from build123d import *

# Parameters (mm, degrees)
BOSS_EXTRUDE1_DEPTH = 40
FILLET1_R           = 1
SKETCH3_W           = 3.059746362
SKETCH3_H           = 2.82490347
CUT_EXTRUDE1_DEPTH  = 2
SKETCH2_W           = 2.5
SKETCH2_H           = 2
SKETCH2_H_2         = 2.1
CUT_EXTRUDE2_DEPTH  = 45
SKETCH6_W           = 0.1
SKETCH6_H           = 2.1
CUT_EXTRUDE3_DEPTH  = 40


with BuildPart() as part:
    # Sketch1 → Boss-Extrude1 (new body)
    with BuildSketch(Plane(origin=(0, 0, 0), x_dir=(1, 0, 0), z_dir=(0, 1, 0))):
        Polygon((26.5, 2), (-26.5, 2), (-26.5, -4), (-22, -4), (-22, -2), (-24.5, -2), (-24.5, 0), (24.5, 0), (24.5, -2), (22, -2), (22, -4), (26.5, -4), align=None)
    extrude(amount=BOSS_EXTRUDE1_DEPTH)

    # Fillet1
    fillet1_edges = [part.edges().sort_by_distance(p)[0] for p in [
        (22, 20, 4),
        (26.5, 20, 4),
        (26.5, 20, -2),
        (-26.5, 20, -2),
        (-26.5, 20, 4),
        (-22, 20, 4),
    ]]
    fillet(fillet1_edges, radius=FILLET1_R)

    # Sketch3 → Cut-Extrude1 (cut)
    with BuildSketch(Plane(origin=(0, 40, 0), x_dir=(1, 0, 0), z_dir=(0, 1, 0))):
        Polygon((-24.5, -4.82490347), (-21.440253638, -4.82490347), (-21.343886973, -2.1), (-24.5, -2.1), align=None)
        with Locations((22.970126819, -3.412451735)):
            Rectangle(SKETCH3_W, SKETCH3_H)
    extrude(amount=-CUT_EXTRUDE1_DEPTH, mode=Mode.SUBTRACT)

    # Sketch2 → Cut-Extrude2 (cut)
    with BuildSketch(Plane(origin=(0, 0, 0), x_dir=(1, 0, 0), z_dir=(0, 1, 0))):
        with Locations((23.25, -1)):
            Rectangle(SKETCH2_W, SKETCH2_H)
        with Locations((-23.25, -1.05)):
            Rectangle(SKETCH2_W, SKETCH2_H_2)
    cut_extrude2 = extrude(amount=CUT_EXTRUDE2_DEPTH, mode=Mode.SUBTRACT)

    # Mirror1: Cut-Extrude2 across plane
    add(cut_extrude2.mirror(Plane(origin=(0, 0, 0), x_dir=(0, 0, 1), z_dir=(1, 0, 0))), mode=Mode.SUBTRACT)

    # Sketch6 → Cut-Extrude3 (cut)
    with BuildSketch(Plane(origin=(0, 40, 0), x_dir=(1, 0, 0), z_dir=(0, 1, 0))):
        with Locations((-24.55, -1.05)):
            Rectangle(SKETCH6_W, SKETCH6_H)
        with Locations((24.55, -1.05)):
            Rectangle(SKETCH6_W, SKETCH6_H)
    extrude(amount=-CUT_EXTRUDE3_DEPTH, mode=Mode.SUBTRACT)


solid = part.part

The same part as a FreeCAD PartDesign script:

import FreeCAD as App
import Part
import Sketcher


def edges_at(feature, points):
    """Names of the edges that pass closest to the given points."""
    edges = feature.Shape.Edges
    near = lambda p: min(range(len(edges)), key=lambda i: edges[i].distToShape(Part.Vertex(*p))[0])
    return sorted({f"Edge{near(p) + 1}" for p in points})

doc = App.newDocument("Part")
body = doc.addObject("PartDesign::Body", "Body")

# Sketch on XZ plane
sketch1 = body.newObject("Sketcher::SketchObject", "Sketch")
sketch1.AttachmentSupport = (doc.getObject("XZ_Plane"), [""])
sketch1.MapMode = "FlatFace"
sketch1.addGeometry(Part.LineSegment(App.Vector(26.5, -2, 0), App.Vector(-26.5, -2, 0)), False)
sketch1.addGeometry(Part.LineSegment(App.Vector(-26.5, -2, 0), App.Vector(-26.5, 4, 0)), False)
sketch1.addGeometry(Part.LineSegment(App.Vector(-26.5, 4, 0), App.Vector(-22, 4, 0)), False)
sketch1.addGeometry(Part.LineSegment(App.Vector(-22, 4, 0), App.Vector(-22, 2, 0)), False)
sketch1.addGeometry(Part.LineSegment(App.Vector(-22, 2, 0), App.Vector(-24.5, 2, 0)), False)
sketch1.addGeometry(Part.LineSegment(App.Vector(-24.5, 2, 0), App.Vector(-24.5, 0, 0)), False)
sketch1.addGeometry(Part.LineSegment(App.Vector(-24.5, 0, 0), App.Vector(24.5, 0, 0)), False)
sketch1.addGeometry(Part.LineSegment(App.Vector(24.5, 0, 0), App.Vector(24.5, 2, 0)), False)
sketch1.addGeometry(Part.LineSegment(App.Vector(24.5, 2, 0), App.Vector(22, 2, 0)), False)
sketch1.addGeometry(Part.LineSegment(App.Vector(22, 2, 0), App.Vector(22, 4, 0)), False)
sketch1.addGeometry(Part.LineSegment(App.Vector(22, 4, 0), App.Vector(26.5, 4, 0)), False)
sketch1.addGeometry(Part.LineSegment(App.Vector(26.5, 4, 0), App.Vector(26.5, -2, 0)), False)
sketch1.addConstraint(Sketcher.Constraint("Coincident", 0, 2, 1, 1))
sketch1.addConstraint(Sketcher.Constraint("Coincident", 1, 2, 2, 1))
sketch1.addConstraint(Sketcher.Constraint("Coincident", 2, 2, 3, 1))
sketch1.addConstraint(Sketcher.Constraint("Coincident", 3, 2, 4, 1))
sketch1.addConstraint(Sketcher.Constraint("Coincident", 4, 2, 5, 1))
sketch1.addConstraint(Sketcher.Constraint("Coincident", 5, 2, 6, 1))
sketch1.addConstraint(Sketcher.Constraint("Coincident", 6, 2, 7, 1))
sketch1.addConstraint(Sketcher.Constraint("Coincident", 7, 2, 8, 1))
sketch1.addConstraint(Sketcher.Constraint("Coincident", 8, 2, 9, 1))
sketch1.addConstraint(Sketcher.Constraint("Coincident", 9, 2, 10, 1))
sketch1.addConstraint(Sketcher.Constraint("Coincident", 10, 2, 11, 1))
sketch1.addConstraint(Sketcher.Constraint("Coincident", 11, 2, 0, 1))
sketch1.addConstraint(Sketcher.Constraint("Horizontal", 0))
sketch1.addConstraint(Sketcher.Constraint("Vertical", 1))
sketch1.addConstraint(Sketcher.Constraint("Horizontal", 2))
sketch1.addConstraint(Sketcher.Constraint("Vertical", 3))
sketch1.addConstraint(Sketcher.Constraint("Horizontal", 4))
sketch1.addConstraint(Sketcher.Constraint("Vertical", 5))
sketch1.addConstraint(Sketcher.Constraint("Horizontal", 6))
sketch1.addConstraint(Sketcher.Constraint("Vertical", 7))
sketch1.addConstraint(Sketcher.Constraint("Horizontal", 8))
sketch1.addConstraint(Sketcher.Constraint("Vertical", 9))
sketch1.addConstraint(Sketcher.Constraint("Horizontal", 10))
sketch1.addConstraint(Sketcher.Constraint("Vertical", 11))
sketch1.addConstraint(Sketcher.Constraint("Symmetric", 5, 2, 6, 2, -1, 1))
sketch1.addConstraint(Sketcher.Constraint("Symmetric", 3, 2, 8, 2, -2))
sketch1.addConstraint(Sketcher.Constraint("Symmetric", 1, 2, 10, 2, -2))
sketch1.addConstraint(Sketcher.Constraint("Equal", 3, 5))
sketch1.addConstraint(Sketcher.Constraint("DistanceX", 0, 2, 0, 1, 53.0))
sketch1.addConstraint(Sketcher.Constraint("DistanceX", 6, 1, 6, 2, 49.0))
sketch1.addConstraint(Sketcher.Constraint("DistanceY", 1, 1, 1, 2, 6.0))
sketch1.addConstraint(Sketcher.Constraint("DistanceY", 3, 2, 3, 1, 2.0))
sketch1.addConstraint(Sketcher.Constraint("DistanceX", 2, 1, 2, 2, 4.5))
pad1 = body.newObject("PartDesign::Pad", "Pad")
pad1.Profile = sketch1
pad1.Length = 40
pad1.Reversed = True
doc.recompute()

fillet = body.newObject("PartDesign::Fillet", "Fillet")
fillet.Base = (pad1, edges_at(pad1, [
    (22, 20, 4),
    (26.5, 20, 4),
    (26.5, 20, -2),
    (-26.5, 20, -2),
    (-26.5, 20, 4),
    (-22, 20, 4),
]))
fillet.Radius = 1

# Sketch on XZ plane
sketch2 = body.newObject("Sketcher::SketchObject", "Sketch001")
sketch2.AttachmentSupport = (doc.getObject("XZ_Plane"), [""])
sketch2.MapMode = "FlatFace"
sketch2.AttachmentOffset = App.Placement(App.Vector(0, 0, -40), App.Rotation())
sketch2.addGeometry(Part.LineSegment(App.Vector(-24.5, 4.8, 0), App.Vector(-21.4, 4.8, 0)), False)
sketch2.addGeometry(Part.LineSegment(App.Vector(-21.4, 4.8, 0), App.Vector(-21.3, 2.1, 0)), False)
sketch2.addGeometry(Part.LineSegment(App.Vector(-21.3, 2.1, 0), App.Vector(-24.5, 2.1, 0)), False)
sketch2.addGeometry(Part.LineSegment(App.Vector(-24.5, 2.1, 0), App.Vector(-24.5, 4.8, 0)), False)
sketch2.addGeometry(Part.LineSegment(App.Vector(21.4, 2, 0), App.Vector(21.4, 4.8, 0)), False)
sketch2.addGeometry(Part.LineSegment(App.Vector(21.4, 4.8, 0), App.Vector(24.5, 4.8, 0)), False)
sketch2.addGeometry(Part.LineSegment(App.Vector(24.5, 4.8, 0), App.Vector(24.5, 2, 0)), False)
sketch2.addGeometry(Part.LineSegment(App.Vector(24.5, 2, 0), App.Vector(21.4, 2, 0)), False)
sketch2.addConstraint(Sketcher.Constraint("Coincident", 0, 2, 1, 1))
sketch2.addConstraint(Sketcher.Constraint("Coincident", 1, 2, 2, 1))
sketch2.addConstraint(Sketcher.Constraint("Coincident", 2, 2, 3, 1))
sketch2.addConstraint(Sketcher.Constraint("Coincident", 3, 2, 0, 1))
sketch2.addConstraint(Sketcher.Constraint("Coincident", 4, 2, 5, 1))
sketch2.addConstraint(Sketcher.Constraint("Coincident", 5, 2, 6, 1))
sketch2.addConstraint(Sketcher.Constraint("Coincident", 6, 2, 7, 1))
sketch2.addConstraint(Sketcher.Constraint("Coincident", 7, 2, 4, 1))
sketch2.addConstraint(Sketcher.Constraint("Horizontal", 0))
sketch2.addConstraint(Sketcher.Constraint("Horizontal", 2))
sketch2.addConstraint(Sketcher.Constraint("Vertical", 3))
sketch2.addConstraint(Sketcher.Constraint("Vertical", 4))
sketch2.addConstraint(Sketcher.Constraint("Horizontal", 5))
sketch2.addConstraint(Sketcher.Constraint("Vertical", 6))
sketch2.addConstraint(Sketcher.Constraint("Horizontal", 7))
sketch2.addConstraint(Sketcher.Constraint("Symmetric", 0, 2, 4, 2, -2))
sketch2.addConstraint(Sketcher.Constraint("Equal", 0, 5))
sketch2.addConstraint(Sketcher.Constraint("DistanceY", -1, 1, 6, 2, 2.0))
sketch2.addConstraint(Sketcher.Constraint("DistanceX", 3, 2, 5, 2, 49.0))
sketch2.addConstraint(Sketcher.Constraint("DistanceY", -1, 1, 1, 2, 2.1))
sketch2.addConstraint(Sketcher.Constraint("DistanceX", 0, 1, 0, 2, 3.059746))
sketch2.addConstraint(Sketcher.Constraint("DistanceX", 2, 2, 2, 1, 3.156113))
sketch2.addConstraint(Sketcher.Constraint("DistanceY", 3, 1, 3, 2, 2.724903))
pocket1 = body.newObject("PartDesign::Pocket", "Pocket")
pocket1.Profile = sketch2
pocket1.Length = 2
pocket1.Reversed = True

# Sketch on XZ plane
sketch3 = body.newObject("Sketcher::SketchObject", "Sketch002")
sketch3.AttachmentSupport = (doc.getObject("XZ_Plane"), [""])
sketch3.MapMode = "FlatFace"
sketch3.addGeometry(Part.LineSegment(App.Vector(22, 0, 0), App.Vector(22, 2, 0)), False)
sketch3.addGeometry(Part.LineSegment(App.Vector(22, 2, 0), App.Vector(24.5, 2, 0)), False)
sketch3.addGeometry(Part.LineSegment(App.Vector(24.5, 2, 0), App.Vector(24.5, 0, 0)), False)
sketch3.addGeometry(Part.LineSegment(App.Vector(24.5, 0, 0), App.Vector(22, 0, 0)), False)
sketch3.addGeometry(Part.LineSegment(App.Vector(-24.5, 0, 0), App.Vector(-24.5, 2.1, 0)), False)
sketch3.addGeometry(Part.LineSegment(App.Vector(-24.5, 2.1, 0), App.Vector(-22, 2.1, 0)), False)
sketch3.addGeometry(Part.LineSegment(App.Vector(-22, 2.1, 0), App.Vector(-22, 0, 0)), False)
sketch3.addGeometry(Part.LineSegment(App.Vector(-22, 0, 0), App.Vector(-24.5, 0, 0)), False)
sketch3.addConstraint(Sketcher.Constraint("Coincident", 0, 2, 1, 1))
sketch3.addConstraint(Sketcher.Constraint("Coincident", 1, 2, 2, 1))
sketch3.addConstraint(Sketcher.Constraint("Coincident", 2, 2, 3, 1))
sketch3.addConstraint(Sketcher.Constraint("Coincident", 3, 2, 0, 1))
sketch3.addConstraint(Sketcher.Constraint("Coincident", 4, 2, 5, 1))
sketch3.addConstraint(Sketcher.Constraint("Coincident", 5, 2, 6, 1))
sketch3.addConstraint(Sketcher.Constraint("Coincident", 6, 2, 7, 1))
sketch3.addConstraint(Sketcher.Constraint("Coincident", 7, 2, 4, 1))
sketch3.addConstraint(Sketcher.Constraint("Vertical", 0))
sketch3.addConstraint(Sketcher.Constraint("Horizontal", 1))
sketch3.addConstraint(Sketcher.Constraint("Vertical", 2))
sketch3.addConstraint(Sketcher.Constraint("Horizontal", 3))
sketch3.addConstraint(Sketcher.Constraint("Vertical", 4))
sketch3.addConstraint(Sketcher.Constraint("Horizontal", 5))
sketch3.addConstraint(Sketcher.Constraint("Vertical", 6))
sketch3.addConstraint(Sketcher.Constraint("Horizontal", 7))
sketch3.addConstraint(Sketcher.Constraint("Symmetric", 3, 2, 6, 2, -1, 1))
sketch3.addConstraint(Sketcher.Constraint("Symmetric", 2, 2, 7, 2, -2))
sketch3.addConstraint(Sketcher.Constraint("DistanceY", 0, 1, 0, 2, 2.0))
sketch3.addConstraint(Sketcher.Constraint("DistanceX", 1, 1, 1, 2, 2.5))
sketch3.addConstraint(Sketcher.Constraint("DistanceY", 4, 1, 4, 2, 2.1))
sketch3.addConstraint(Sketcher.Constraint("DistanceX", -1, 1, 0, 2, 22.0))
pocket2 = body.newObject("PartDesign::Pocket", "Pocket001")
pocket2.Profile = sketch3
pocket2.Length = 45
doc.recompute()

mirrored = body.newObject("PartDesign::Mirrored", "Mirrored")
mirrored.Originals = [pocket2]
mirrored.MirrorPlane = (doc.getObject("YZ_Plane"), [""])
body.Tip = mirrored

# Sketch on XZ plane
sketch4 = body.newObject("Sketcher::SketchObject", "Sketch003")
sketch4.AttachmentSupport = (doc.getObject("XZ_Plane"), [""])
sketch4.MapMode = "FlatFace"
sketch4.AttachmentOffset = App.Placement(App.Vector(0, 0, -40), App.Rotation())
sketch4.addGeometry(Part.LineSegment(App.Vector(-24.6, 0, 0), App.Vector(-24.6, 2.1, 0)), False)
sketch4.addGeometry(Part.LineSegment(App.Vector(-24.6, 2.1, 0), App.Vector(-24.5, 2.1, 0)), False)
sketch4.addGeometry(Part.LineSegment(App.Vector(-24.5, 2.1, 0), App.Vector(-24.5, 0, 0)), False)
sketch4.addGeometry(Part.LineSegment(App.Vector(-24.5, 0, 0), App.Vector(-24.6, 0, 0)), False)
sketch4.addGeometry(Part.LineSegment(App.Vector(24.5, 0, 0), App.Vector(24.5, 2.1, 0)), False)
sketch4.addGeometry(Part.LineSegment(App.Vector(24.5, 2.1, 0), App.Vector(24.6, 2.1, 0)), False)
sketch4.addGeometry(Part.LineSegment(App.Vector(24.6, 2.1, 0), App.Vector(24.6, 0, 0)), False)
sketch4.addGeometry(Part.LineSegment(App.Vector(24.6, 0, 0), App.Vector(24.5, 0, 0)), False)
sketch4.addConstraint(Sketcher.Constraint("Coincident", 0, 2, 1, 1))
sketch4.addConstraint(Sketcher.Constraint("Coincident", 1, 2, 2, 1))
sketch4.addConstraint(Sketcher.Constraint("Coincident", 2, 2, 3, 1))
sketch4.addConstraint(Sketcher.Constraint("Coincident", 3, 2, 0, 1))
sketch4.addConstraint(Sketcher.Constraint("Coincident", 4, 2, 5, 1))
sketch4.addConstraint(Sketcher.Constraint("Coincident", 5, 2, 6, 1))
sketch4.addConstraint(Sketcher.Constraint("Coincident", 6, 2, 7, 1))
sketch4.addConstraint(Sketcher.Constraint("Coincident", 7, 2, 4, 1))
sketch4.addConstraint(Sketcher.Constraint("Vertical", 0))
sketch4.addConstraint(Sketcher.Constraint("Horizontal", 1))
sketch4.addConstraint(Sketcher.Constraint("Vertical", 2))
sketch4.addConstraint(Sketcher.Constraint("Horizontal", 3))
sketch4.addConstraint(Sketcher.Constraint("Vertical", 4))
sketch4.addConstraint(Sketcher.Constraint("Horizontal", 5))
sketch4.addConstraint(Sketcher.Constraint("Vertical", 6))
sketch4.addConstraint(Sketcher.Constraint("Horizontal", 7))
sketch4.addConstraint(Sketcher.Constraint("Symmetric", 3, 2, 6, 2, -1, 1))
sketch4.addConstraint(Sketcher.Constraint("Symmetric", 1, 2, 4, 2, -2))
sketch4.addConstraint(Sketcher.Constraint("PointOnObject", 2, 2, -1))
sketch4.addConstraint(Sketcher.Constraint("DistanceX", 1, 1, 1, 2, 0.1))
sketch4.addConstraint(Sketcher.Constraint("DistanceY", 0, 1, 0, 2, 2.1))
sketch4.addConstraint(Sketcher.Constraint("DistanceX", 1, 2, 4, 2, 49.0))
pocket3 = body.newObject("PartDesign::Pocket", "Pocket002")
pocket3.Profile = sketch4
pocket3.Length = 40
pocket3.Reversed = True

doc.recompute()
